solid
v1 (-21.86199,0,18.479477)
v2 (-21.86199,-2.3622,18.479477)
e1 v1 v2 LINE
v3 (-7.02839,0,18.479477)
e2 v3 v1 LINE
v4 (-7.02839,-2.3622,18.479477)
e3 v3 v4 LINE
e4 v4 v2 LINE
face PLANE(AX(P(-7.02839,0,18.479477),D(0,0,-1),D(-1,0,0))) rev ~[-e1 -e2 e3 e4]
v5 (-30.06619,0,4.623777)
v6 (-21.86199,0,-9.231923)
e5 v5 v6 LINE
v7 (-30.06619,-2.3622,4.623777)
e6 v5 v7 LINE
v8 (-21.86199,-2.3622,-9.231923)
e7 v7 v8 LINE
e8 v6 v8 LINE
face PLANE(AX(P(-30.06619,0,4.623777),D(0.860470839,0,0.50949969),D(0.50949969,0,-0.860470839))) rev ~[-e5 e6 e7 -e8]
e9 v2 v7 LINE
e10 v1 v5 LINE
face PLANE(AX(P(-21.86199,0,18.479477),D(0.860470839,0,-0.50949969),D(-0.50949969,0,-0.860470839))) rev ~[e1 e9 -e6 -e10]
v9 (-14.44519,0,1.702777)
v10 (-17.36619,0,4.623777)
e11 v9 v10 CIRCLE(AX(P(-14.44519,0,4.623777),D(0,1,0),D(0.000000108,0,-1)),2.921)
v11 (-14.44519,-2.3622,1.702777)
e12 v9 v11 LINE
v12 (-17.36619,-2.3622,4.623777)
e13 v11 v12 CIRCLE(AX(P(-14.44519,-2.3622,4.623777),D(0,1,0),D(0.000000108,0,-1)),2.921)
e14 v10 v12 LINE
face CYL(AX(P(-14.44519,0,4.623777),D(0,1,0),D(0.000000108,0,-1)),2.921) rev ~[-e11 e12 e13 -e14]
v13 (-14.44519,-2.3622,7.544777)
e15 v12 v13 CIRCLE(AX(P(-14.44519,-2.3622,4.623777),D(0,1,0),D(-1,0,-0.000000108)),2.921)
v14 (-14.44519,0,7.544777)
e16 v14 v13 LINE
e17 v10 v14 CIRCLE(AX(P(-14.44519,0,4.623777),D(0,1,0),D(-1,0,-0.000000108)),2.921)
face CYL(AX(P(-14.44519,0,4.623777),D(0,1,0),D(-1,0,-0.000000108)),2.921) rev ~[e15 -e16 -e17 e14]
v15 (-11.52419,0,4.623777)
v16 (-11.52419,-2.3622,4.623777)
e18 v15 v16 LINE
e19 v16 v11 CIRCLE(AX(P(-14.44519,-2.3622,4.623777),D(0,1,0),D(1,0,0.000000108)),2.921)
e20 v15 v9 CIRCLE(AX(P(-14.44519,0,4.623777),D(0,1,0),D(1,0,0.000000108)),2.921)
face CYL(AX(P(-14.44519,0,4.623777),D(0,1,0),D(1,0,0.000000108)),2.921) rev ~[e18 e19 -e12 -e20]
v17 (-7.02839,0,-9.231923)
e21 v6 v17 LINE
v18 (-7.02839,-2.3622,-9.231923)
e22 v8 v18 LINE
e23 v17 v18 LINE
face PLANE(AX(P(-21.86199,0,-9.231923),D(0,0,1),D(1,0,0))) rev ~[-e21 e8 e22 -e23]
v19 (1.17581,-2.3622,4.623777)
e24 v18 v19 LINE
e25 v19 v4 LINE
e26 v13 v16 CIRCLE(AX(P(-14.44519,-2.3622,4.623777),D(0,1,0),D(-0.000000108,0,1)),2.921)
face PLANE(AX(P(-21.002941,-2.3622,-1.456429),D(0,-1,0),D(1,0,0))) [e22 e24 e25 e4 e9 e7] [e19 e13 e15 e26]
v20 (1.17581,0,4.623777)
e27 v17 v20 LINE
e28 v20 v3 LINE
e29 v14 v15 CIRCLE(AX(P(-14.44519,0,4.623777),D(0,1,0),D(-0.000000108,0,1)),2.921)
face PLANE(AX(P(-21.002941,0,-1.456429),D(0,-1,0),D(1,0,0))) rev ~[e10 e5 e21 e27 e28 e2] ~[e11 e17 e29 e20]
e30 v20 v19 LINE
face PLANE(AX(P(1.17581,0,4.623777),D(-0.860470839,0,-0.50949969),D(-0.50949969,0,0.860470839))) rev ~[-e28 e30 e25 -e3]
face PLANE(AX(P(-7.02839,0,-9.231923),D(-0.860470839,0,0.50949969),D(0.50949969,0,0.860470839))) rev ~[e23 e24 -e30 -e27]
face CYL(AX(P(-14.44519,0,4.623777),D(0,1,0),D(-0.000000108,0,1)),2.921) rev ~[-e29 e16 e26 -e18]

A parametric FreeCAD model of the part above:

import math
import FreeCAD as App
import Part
import Sketcher
Q = App.Units.Quantity

doc = App.newDocument("Part")
body = doc.addObject("PartDesign::Body", "Body")

# Sketch on XZ plane
sketch1 = doc.addObject("Sketcher::SketchObject", "Sketch")
body.addObject(sketch1)
sketch1.AttachmentSupport = (doc.XZ_Plane, [""])
sketch1.MapMode = "FlatFace"
sketch1.addGeometry([
    Part.LineSegment(App.Vector(-21.9, -9.2, 0), App.Vector(-7, -9.2, 0)),  # 0
    Part.LineSegment(App.Vector(-7, -9.2, 0), App.Vector(1.2, 4.6, 0)),  # 1
    Part.LineSegment(App.Vector(1.2, 4.6, 0), App.Vector(-7, 18.5, 0)),  # 2
    Part.LineSegment(App.Vector(-7, 18.5, 0), App.Vector(-21.9, 18.5, 0)),  # 3
    Part.LineSegment(App.Vector(-21.9, 18.5, 0), App.Vector(-30.1, 4.6, 0)),  # 4
    Part.LineSegment(App.Vector(-30.1, 4.6, 0), App.Vector(-21.9, -9.2, 0)),  # 5
    Part.ArcOfCircle(Part.Circle(App.Vector(-14.4, 4.6, 0), App.Vector(0, 0, 1), 2.9), math.radians(-90), math.radians(0)),  # 6
    Part.ArcOfCircle(Part.Circle(App.Vector(-14.4, 4.6, 0), App.Vector(0, 0, 1), 2.9), math.radians(180), math.radians(270)),  # 7
    Part.ArcOfCircle(Part.Circle(App.Vector(-14.4, 4.6, 0), App.Vector(0, 0, 1), 2.9), math.radians(90), math.radians(180)),  # 8
    Part.ArcOfCircle(Part.Circle(App.Vector(-14.4, 4.6, 0), App.Vector(0, 0, 1), 2.9), math.radians(0), math.radians(90)),  # 9
], False)
sketch1.addConstraint([
    Sketcher.Constraint("Coincident", 0, 2, 1, 1),
    Sketcher.Constraint("Coincident", 1, 2, 2, 1),
    Sketcher.Constraint("Coincident", 2, 2, 3, 1),
    Sketcher.Constraint("Coincident", 3, 2, 4, 1),
    Sketcher.Constraint("Coincident", 4, 2, 5, 1),
    Sketcher.Constraint("Coincident", 5, 2, 0, 1),
    Sketcher.Constraint("Tangent", 6, 1, 7, 2),
    Sketcher.Constraint("Tangent", 7, 1, 8, 2),
    Sketcher.Constraint("Tangent", 8, 1, 9, 2),
    Sketcher.Constraint("Tangent", 9, 1, 6, 2),
    Sketcher.Constraint("Horizontal", 0),
    Sketcher.Constraint("Horizontal", 3),
    Sketcher.Constraint("Equal", 6, 7),
    Sketcher.Constraint("Parallel", 1, 4),
    Sketcher.Constraint("Parallel", 2, 5),
    Sketcher.Constraint("Horizontal", 9, 3, 1, 2),
    Sketcher.Constraint("Horizontal", 1, 2, 4, 2),
    Sketcher.Constraint("Horizontal", 4, 2, 7, 1),
    Sketcher.Constraint("Horizontal", 7, 1, 9, 1),
    Sketcher.Constraint("Vertical", 0, 2, 2, 2),
    Sketcher.Constraint("Vertical", 3, 2, 5, 2),
    Sketcher.Constraint("Vertical", 9, 3, 6, 1),
    Sketcher.Constraint("Vertical", 6, 1, 8, 1),
    Sketcher.Constraint("Radius", 6, Q("0.115 in")),
    Sketcher.Constraint("DistanceX", 0, 1, 0, 2, Q("0.584 in")),
    Sketcher.Constraint("DistanceX", 6, 3, 0, 2, Q("0.292 in")),
    Sketcher.Constraint("DistanceX", 6, 3, 1, 2, Q("0.615 in")),
    Sketcher.Constraint("DistanceY", 0, 2, 6, 3, Q("0.5455 in")),
    Sketcher.Constraint("DistanceX", 6, 3, -1, 1, Q("14.44519 mm")),
    Sketcher.Constraint("DistanceY", -1, 1, 6, 3, Q("4.623777 mm")),
])
pad1 = doc.addObject("PartDesign::Pad", "Pad")
body.addObject(pad1)
pad1.Profile = sketch1
pad1.Length = Q("0.093 in")

doc.recompute()
